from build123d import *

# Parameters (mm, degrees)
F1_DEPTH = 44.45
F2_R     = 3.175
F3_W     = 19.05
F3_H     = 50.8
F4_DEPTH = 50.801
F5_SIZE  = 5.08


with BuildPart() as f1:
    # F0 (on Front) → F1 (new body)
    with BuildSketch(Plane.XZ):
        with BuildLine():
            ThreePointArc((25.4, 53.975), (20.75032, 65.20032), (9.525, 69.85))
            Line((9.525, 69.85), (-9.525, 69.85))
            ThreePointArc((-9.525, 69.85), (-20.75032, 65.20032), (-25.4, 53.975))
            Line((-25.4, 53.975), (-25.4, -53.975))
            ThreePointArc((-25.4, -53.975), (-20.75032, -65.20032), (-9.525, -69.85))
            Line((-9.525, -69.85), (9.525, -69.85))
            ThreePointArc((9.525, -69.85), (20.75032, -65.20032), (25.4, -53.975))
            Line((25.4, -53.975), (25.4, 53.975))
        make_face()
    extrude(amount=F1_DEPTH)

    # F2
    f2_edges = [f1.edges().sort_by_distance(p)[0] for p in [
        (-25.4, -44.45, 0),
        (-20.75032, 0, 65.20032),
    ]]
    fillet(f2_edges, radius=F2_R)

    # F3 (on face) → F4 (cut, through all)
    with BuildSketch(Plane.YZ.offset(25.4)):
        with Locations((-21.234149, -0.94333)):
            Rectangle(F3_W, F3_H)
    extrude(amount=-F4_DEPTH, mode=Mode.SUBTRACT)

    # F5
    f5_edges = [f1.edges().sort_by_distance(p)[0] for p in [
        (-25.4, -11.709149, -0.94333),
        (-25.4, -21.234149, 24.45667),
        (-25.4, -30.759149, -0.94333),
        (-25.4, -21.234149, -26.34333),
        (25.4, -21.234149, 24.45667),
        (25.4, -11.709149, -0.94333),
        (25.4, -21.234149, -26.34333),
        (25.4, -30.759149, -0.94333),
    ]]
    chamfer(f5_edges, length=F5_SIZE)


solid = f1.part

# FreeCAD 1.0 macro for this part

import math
import FreeCAD as App
import Part
import Sketcher
Q = App.Units.Quantity


def edges_at(feature, points):
    """Names of the edges that pass closest to the given points."""
    edges = feature.Shape.Edges
    near = lambda p: min(range(len(edges)), key=lambda i: edges[i].distToShape(Part.Vertex(*p))[0])
    return sorted({f"Edge{near(p) + 1}" for p in points})

doc = App.newDocument("Part")
body = doc.addObject("PartDesign::Body", "Body")

# Sketch on XZ plane
sketch1 = body.newObject("Sketcher::SketchObject", "Sketch")
sketch1.AttachmentSupport = (doc.getObject("XZ_Plane"), [""])
sketch1.MapMode = "FlatFace"
sketch1.addGeometry(Part.ArcOfCircle(Part.Circle(App.Vector(10, 54, 0), App.Vector(0, 0, 1), 16), math.radians(0), math.radians(90)), False)
sketch1.addGeometry(Part.LineSegment(App.Vector(10, 70, 0), App.Vector(-10, 70, 0)), False)
sketch1.addGeometry(Part.ArcOfCircle(Part.Circle(App.Vector(-10, 54, 0), App.Vector(0, 0, 1), 16), math.radians(90), math.radians(180)), False)
sketch1.addGeometry(Part.LineSegment(App.Vector(-25, 54, 0), App.Vector(-25, -54, 0)), False)
sketch1.addGeometry(Part.ArcOfCircle(Part.Circle(App.Vector(-10, -54, 0), App.Vector(0, 0, 1), 16), math.radians(-180), math.radians(-90)), False)
sketch1.addGeometry(Part.LineSegment(App.Vector(-10, -70, 0), App.Vector(10, -70, 0)), False)
sketch1.addGeometry(Part.ArcOfCircle(Part.Circle(App.Vector(10, -54, 0), App.Vector(0, 0, 1), 16), math.radians(-90), math.radians(0)), False)
sketch1.addGeometry(Part.LineSegment(App.Vector(25, -54, 0), App.Vector(25, 54, 0)), False)
sketch1.addConstraint(Sketcher.Constraint("Tangent", 0, 2, 1, 1))
sketch1.addConstraint(Sketcher.Constraint("Tangent", 1, 2, 2, 1))
sketch1.addConstraint(Sketcher.Constraint("Tangent", 2, 2, 3, 1))
sketch1.addConstraint(Sketcher.Constraint("Tangent", 3, 2, 4, 1))
sketch1.addConstraint(Sketcher.Constraint("Tangent", 4, 2, 5, 1))
sketch1.addConstraint(Sketcher.Constraint("Tangent", 5, 2, 6, 1))
sketch1.addConstraint(Sketcher.Constraint("Tangent", 6, 2, 7, 1))
sketch1.addConstraint(Sketcher.Constraint("Tangent", 7, 2, 0, 1))
sketch1.addConstraint(Sketcher.Constraint("Horizontal", 1))
sketch1.addConstraint(Sketcher.Constraint("Vertical", 3))
sketch1.addConstraint(Sketcher.Constraint("Horizontal", 5))
sketch1.addConstraint(Sketcher.Constraint("Vertical", 7))
sketch1.addConstraint(Sketcher.Constraint("Equal", 0, 2))
sketch1.addConstraint(Sketcher.Constraint("Equal", 2, 4))
sketch1.addConstraint(Sketcher.Constraint("Equal", 4, 6))
sketch1.addConstraint(Sketcher.Constraint("Symmetric", 0, 3, 4, 3, -1, 1))
sketch1.addConstraint(Sketcher.Constraint("DistanceX", 2, 2, -1, 1, Q("1 in")))
sketch1.addConstraint(Sketcher.Constraint("Radius", 0, Q("0.625 in")))
sketch1.addConstraint(Sketcher.Constraint("DistanceY", 3, 2, 3, 1, Q("4.25 in")))
pad1 = body.newObject("PartDesign::Pad", "Pad")
pad1.Profile = sketch1
pad1.Length = Q("1.75 in")
doc.recompute()

fillet = body.newObject("PartDesign::Fillet", "Fillet")
fillet.Base = (pad1, edges_at(pad1, [(-25.4, -44.45, 0), (-20.75, 0, 65.2)]))
fillet.Radius = Q("0.125 in")

# Sketch on YZ plane
sketch2 = body.newObject("Sketcher::SketchObject", "Sketch001")
sketch2.AttachmentSupport = (doc.getObject("YZ_Plane"), [""])
sketch2.MapMode = "FlatFace"
sketch2.AttachmentOffset = App.Placement(App.Vector(0, 0, 1 * 25.4), App.Rotation())
sketch2.addGeometry(Part.LineSegment(App.Vector(-31, 24, 0), App.Vector(-31, -26, 0)), False)
sketch2.addGeometry(Part.LineSegment(App.Vector(-31, -26, 0), App.Vector(-12, -26, 0)), False)
sketch2.addGeometry(Part.LineSegment(App.Vector(-12, -26, 0), App.Vector(-12, 24, 0)), False)
sketch2.addGeometry(Part.LineSegment(App.Vector(-12, 24, 0), App.Vector(-31, 24, 0)), False)
sketch2.addConstraint(Sketcher.Constraint("Coincident", 0, 2, 1, 1))
sketch2.addConstraint(Sketcher.Constraint("Coincident", 1, 2, 2, 1))
sketch2.addConstraint(Sketcher.Constraint("Coincident", 2, 2, 3, 1))
sketch2.addConstraint(Sketcher.Constraint("Coincident", 3, 2, 0, 1))
sketch2.addConstraint(Sketcher.Constraint("Vertical", 0))
sketch2.addConstraint(Sketcher.Constraint("Horizontal", 1))
sketch2.addConstraint(Sketcher.Constraint("Vertical", 2))
sketch2.addConstraint(Sketcher.Constraint("Horizontal", 3))
sketch2.addConstraint(Sketcher.Constraint("DistanceY", 0, 2, 0, 1, Q("2 in")))
sketch2.addConstraint(Sketcher.Constraint("DistanceX", 1, 1, 1, 2, Q("0.75 in")))
sketch2.addConstraint(Sketcher.Constraint("DistanceX", 0, 2, -1, 1, Q("30.759149 mm")))
sketch2.addConstraint(Sketcher.Constraint("DistanceY", 0, 2, -1, 1, Q("26.34333 mm")))
pocket1 = body.newObject("PartDesign::Pocket", "Pocket")
pocket1.Profile = sketch2
pocket1.Type = "ThroughAll"
doc.recompute()

chamfer = body.newObject("PartDesign::Chamfer", "Chamfer")
chamfer.Base = (pocket1, edges_at(pocket1, [
    (-25.4, -11.709, -0.943),
    (-25.4, -21.234, 24.457),
    (-25.4, -30.759, -0.943),
    (-25.4, -21.234, -26.343),
    (25.4, -21.234, 24.457),
    (25.4, -11.709, -0.943),
    (25.4, -21.234, -26.343),
    (25.4, -30.759, -0.943),
]))
chamfer.Size = Q("0.2 in")

doc.recompute()
